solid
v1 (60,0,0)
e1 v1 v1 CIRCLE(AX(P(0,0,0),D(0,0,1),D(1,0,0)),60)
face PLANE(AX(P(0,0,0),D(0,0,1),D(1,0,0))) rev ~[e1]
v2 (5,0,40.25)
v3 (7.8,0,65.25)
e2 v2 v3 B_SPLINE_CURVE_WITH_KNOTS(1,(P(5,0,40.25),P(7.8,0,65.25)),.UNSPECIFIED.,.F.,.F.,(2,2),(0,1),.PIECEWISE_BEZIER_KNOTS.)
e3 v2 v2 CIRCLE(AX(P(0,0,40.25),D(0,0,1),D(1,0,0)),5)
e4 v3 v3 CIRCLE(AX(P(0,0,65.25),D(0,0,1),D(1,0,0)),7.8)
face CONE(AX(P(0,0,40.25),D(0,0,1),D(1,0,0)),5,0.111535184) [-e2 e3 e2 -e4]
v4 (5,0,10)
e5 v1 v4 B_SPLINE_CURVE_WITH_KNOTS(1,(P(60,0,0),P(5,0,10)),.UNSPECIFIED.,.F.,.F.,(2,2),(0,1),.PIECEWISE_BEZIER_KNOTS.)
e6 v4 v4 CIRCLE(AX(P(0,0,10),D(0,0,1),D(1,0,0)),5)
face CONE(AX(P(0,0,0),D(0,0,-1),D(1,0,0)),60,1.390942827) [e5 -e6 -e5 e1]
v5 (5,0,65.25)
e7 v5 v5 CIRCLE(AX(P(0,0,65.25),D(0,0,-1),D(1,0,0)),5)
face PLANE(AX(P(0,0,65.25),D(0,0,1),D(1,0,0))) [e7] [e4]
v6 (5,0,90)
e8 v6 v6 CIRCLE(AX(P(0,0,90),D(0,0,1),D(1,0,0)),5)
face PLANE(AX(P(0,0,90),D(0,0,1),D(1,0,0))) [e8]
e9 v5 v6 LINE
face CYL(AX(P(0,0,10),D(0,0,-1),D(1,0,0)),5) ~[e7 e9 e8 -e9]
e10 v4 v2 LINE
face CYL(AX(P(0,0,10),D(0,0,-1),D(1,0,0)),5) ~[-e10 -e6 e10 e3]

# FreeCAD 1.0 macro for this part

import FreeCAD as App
import Part
import Sketcher

V = App.Vector
Q = App.Units.Quantity

doc = App.newDocument("Part")
params = doc.addObject("Spreadsheet::Sheet", "Params")
for row, (alias, value) in enumerate([
    ("sketch1_diameter", "10 mm"),
    ("pad1_length", "80 mm"),
    ("sketch2_diameter", "120 mm"),
    ("sketch3_diameter", "10 mm"),
    ("sketch4_diameter", "10 mm"),
    ("sketch5_diameter", "15.6 mm"),
], start=1):
    params.set(f"A{row}", alias)
    params.set(f"B{row}", "=" + value)
    params.setAlias(f"B{row}", alias)

body = doc.addObject("PartDesign::Body", "Body")

# Sketch on XY plane
sketch1 = body.newObject("Sketcher::SketchObject", "Sketch")
sketch1.AttachmentSupport = (doc.getObject("XY_Plane"), [""])
sketch1.MapMode = "FlatFace"
sketch1.AttachmentOffset = App.Placement(V(0, 0, 10), App.Rotation())
sketch1.addGeometry(Part.Circle(V(0, 0, 0), V(0, 0, 1), 5), False)
sketch1.addConstraint([
    Sketcher.Constraint("Coincident", 0, 3, -1, 1),
    Sketcher.Constraint("Diameter", 0, Q("10 mm")),
])
sketch1.setExpression("Constraints[1]", "Params.sketch1_diameter")
pad1 = body.newObject("PartDesign::Pad", "Pad")
pad1.Profile = sketch1
pad1.setExpression("Length", "Params.pad1_length")

# Sketch on XY plane
sketch2 = body.newObject("Sketcher::SketchObject", "Sketch001")
sketch2.AttachmentSupport = (doc.getObject("XY_Plane"), [""])
sketch2.MapMode = "FlatFace"
sketch2.addGeometry(Part.Circle(V(0, 0, 0), V(0, 0, 1), 60), False)
sketch2.addConstraint([
    Sketcher.Constraint("Coincident", 0, 3, -1, 1),
    Sketcher.Constraint("Diameter", 0, Q("120 mm")),
])
sketch2.setExpression("Constraints[1]", "Params.sketch2_diameter")

# Sketch on XY plane
sketch3 = body.newObject("Sketcher::SketchObject", "Sketch002")
sketch3.AttachmentSupport = (doc.getObject("XY_Plane"), [""])
sketch3.MapMode = "FlatFace"
sketch3.AttachmentOffset = App.Placement(V(0, 0, 10), App.Rotation())
sketch3.addGeometry(Part.Circle(V(0, 0, 0), V(0, 0, 1), 5), False)
sketch3.addConstraint([
    Sketcher.Constraint("Coincident", 0, 3, -1, 1),
    Sketcher.Constraint("Diameter", 0, Q("10 mm")),
])
sketch3.setExpression("Constraints[1]", "Params.sketch3_diameter")

additiveloft = body.newObject("PartDesign::AdditiveLoft", "AdditiveLoft")
additiveloft.Profile = sketch2
additiveloft.Sections = [sketch3]

# Sketch on XY plane
sketch4 = body.newObject("Sketcher::SketchObject", "Sketch003")
sketch4.AttachmentSupport = (doc.getObject("XY_Plane"), [""])
sketch4.MapMode = "FlatFace"
sketch4.AttachmentOffset = App.Placement(V(0, 0, 40.25), App.Rotation())
sketch4.addGeometry(Part.Circle(V(0, 0, 0), V(0, 0, 1), 5), False)
sketch4.addConstraint([
    Sketcher.Constraint("Coincident", 0, 3, -1, 1),
    Sketcher.Constraint("Diameter", 0, Q("10 mm")),
])
sketch4.setExpression("Constraints[1]", "Params.sketch4_diameter")

# Sketch on XY plane
sketch5 = body.newObject("Sketcher::SketchObject", "Sketch004")
sketch5.AttachmentSupport = (doc.getObject("XY_Plane"), [""])
sketch5.MapMode = "FlatFace"
sketch5.AttachmentOffset = App.Placement(V(0, 0, 65.25), App.Rotation())
sketch5.addGeometry(Part.Circle(V(0, 0, 0), V(0, 0, 1), 8), False)
sketch5.addConstraint([
    Sketcher.Constraint("Coincident", 0, 3, -1, 1),
    Sketcher.Constraint("Diameter", 0, Q("15.6 mm")),
])
sketch5.setExpression("Constraints[1]", "Params.sketch5_diameter")

additiveloft2 = body.newObject("PartDesign::AdditiveLoft", "AdditiveLoft001")
additiveloft2.Profile = sketch4
additiveloft2.Sections = [sketch5]

doc.recompute()
